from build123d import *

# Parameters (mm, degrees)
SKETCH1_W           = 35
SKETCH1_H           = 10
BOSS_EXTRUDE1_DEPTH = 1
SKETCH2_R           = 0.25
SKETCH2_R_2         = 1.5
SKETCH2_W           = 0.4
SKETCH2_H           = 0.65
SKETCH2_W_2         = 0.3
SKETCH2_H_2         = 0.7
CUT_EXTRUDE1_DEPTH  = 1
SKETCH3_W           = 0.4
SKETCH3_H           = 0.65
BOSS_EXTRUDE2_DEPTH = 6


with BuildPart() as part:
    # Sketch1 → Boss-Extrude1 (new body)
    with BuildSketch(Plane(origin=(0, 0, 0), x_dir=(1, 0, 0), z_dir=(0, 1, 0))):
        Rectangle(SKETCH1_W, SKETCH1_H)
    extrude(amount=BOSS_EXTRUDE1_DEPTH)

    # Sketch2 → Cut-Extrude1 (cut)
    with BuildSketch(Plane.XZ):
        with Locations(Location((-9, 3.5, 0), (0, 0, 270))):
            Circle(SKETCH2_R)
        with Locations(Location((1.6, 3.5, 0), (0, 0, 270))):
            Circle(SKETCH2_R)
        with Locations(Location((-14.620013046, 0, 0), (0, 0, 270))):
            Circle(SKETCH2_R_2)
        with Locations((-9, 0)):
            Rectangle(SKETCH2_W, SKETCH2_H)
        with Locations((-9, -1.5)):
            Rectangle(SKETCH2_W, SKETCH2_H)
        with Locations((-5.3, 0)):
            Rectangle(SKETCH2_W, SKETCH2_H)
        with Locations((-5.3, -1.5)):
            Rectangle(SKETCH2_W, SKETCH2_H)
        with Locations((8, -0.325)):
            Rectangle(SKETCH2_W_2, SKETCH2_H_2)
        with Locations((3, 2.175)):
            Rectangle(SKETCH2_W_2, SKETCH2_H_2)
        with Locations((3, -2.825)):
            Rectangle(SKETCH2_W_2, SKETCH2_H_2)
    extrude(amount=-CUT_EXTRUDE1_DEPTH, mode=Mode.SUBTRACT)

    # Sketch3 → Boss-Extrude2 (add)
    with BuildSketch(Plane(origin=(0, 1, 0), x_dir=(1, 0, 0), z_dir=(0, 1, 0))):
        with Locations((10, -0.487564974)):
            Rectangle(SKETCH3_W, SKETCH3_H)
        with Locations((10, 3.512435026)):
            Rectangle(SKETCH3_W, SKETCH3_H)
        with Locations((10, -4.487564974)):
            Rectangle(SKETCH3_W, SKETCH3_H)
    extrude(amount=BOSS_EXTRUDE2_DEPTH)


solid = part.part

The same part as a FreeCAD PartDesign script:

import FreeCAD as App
import Part
import Sketcher

V = App.Vector


def add_polygon(sketch, points):
    """Adds a closed chain of lines whose ends are joined by coincident constraints."""
    first, n = sketch.GeometryCount, len(points)
    for a, b in zip(points, points[1:] + points[:1]):
        sketch.addGeometry(Part.LineSegment(App.Vector(*a, 0), App.Vector(*b, 0)), False)
    for i in range(n):
        sketch.addConstraint(Sketcher.Constraint("Coincident", first + i, 2, first + (i + 1) % n, 1))

doc = App.newDocument("Part")
body = doc.addObject("PartDesign::Body", "Body")

sketch1 = doc.addObject("Sketcher::SketchObject", "Sketch")
body.addObject(sketch1)
sketch1.AttachmentSupport = (doc.XZ_Plane, [""])
sketch1.MapMode = "FlatFace"
add_polygon(sketch1, [(-17.5, -5), (-17.5, 5), (17.5, 5), (17.5, -5)])
sketch1.addConstraint([
    Sketcher.Constraint("Vertical", 0),
    Sketcher.Constraint("Horizontal", 1),
    Sketcher.Constraint("Vertical", 2),
    Sketcher.Constraint("Horizontal", 3),
    Sketcher.Constraint("Symmetric", 0, 2, 2, 2, -1, 1),
    Sketcher.Constraint("DistanceX", 1, 1, 1, 2, 35.0),
    Sketcher.Constraint("DistanceY", 0, 1, 0, 2, 10.0),
])
pad1 = doc.addObject("PartDesign::Pad", "Pad")
body.addObject(pad1)
pad1.Profile = sketch1
pad1.Length = 1
pad1.Reversed = True

sketch2 = doc.addObject("Sketcher::SketchObject", "Sketch001")
body.addObject(sketch2)
sketch2.AttachmentSupport = (doc.XZ_Plane, [""])
sketch2.MapMode = "FlatFace"
sketch2.addGeometry(Part.Circle(V(-9, 3.5, 0), V(0, 0, 1), 0.25), False)
sketch2.addGeometry(Part.Circle(V(1.6, 3.5, 0), V(0, 0, 1), 0.25), False)
sketch2.addGeometry(Part.Circle(V(-14.620013, 0, 0), V(0, 0, 1), 1.5), False)
add_polygon(sketch2, [(-9.2, 0.325), (-9.2, -0.325), (-8.8, -0.325), (-8.8, 0.325)])
add_polygon(sketch2, [(-9.2, -1.175), (-9.2, -1.825), (-8.8, -1.825), (-8.8, -1.175)])
add_polygon(sketch2, [(-5.5, 0.325), (-5.5, -0.325), (-5.1, -0.325), (-5.1, 0.325)])
add_polygon(sketch2, [(-5.5, -1.175), (-5.5, -1.825), (-5.1, -1.825), (-5.1, -1.175)])
add_polygon(sketch2, [(7.85, 0.025), (7.85, -0.675), (8.15, -0.675), (8.15, 0.025)])
add_polygon(sketch2, [(2.85, 2.525), (2.85, 1.825), (3.15, 1.825), (3.15, 2.525)])
add_polygon(sketch2, [(2.85, -2.475), (2.85, -3.175), (3.15, -3.175), (3.15, -2.475)])
sketch2.addConstraint([
    Sketcher.Constraint("Vertical", 3),
    Sketcher.Constraint("Horizontal", 4),
    Sketcher.Constraint("Vertical", 5),
    Sketcher.Constraint("Horizontal", 6),
    Sketcher.Constraint("Vertical", 7),
    Sketcher.Constraint("Horizontal", 8),
    Sketcher.Constraint("Vertical", 9),
    Sketcher.Constraint("Horizontal", 10),
    Sketcher.Constraint("Vertical", 11),
    Sketcher.Constraint("Horizontal", 12),
    Sketcher.Constraint("Vertical", 13),
    Sketcher.Constraint("Horizontal", 14),
    Sketcher.Constraint("Vertical", 15),
    Sketcher.Constraint("Horizontal", 16),
    Sketcher.Constraint("Vertical", 17),
    Sketcher.Constraint("Horizontal", 18),
    Sketcher.Constraint("Vertical", 19),
    Sketcher.Constraint("Horizontal", 20),
    Sketcher.Constraint("Vertical", 21),
    Sketcher.Constraint("Horizontal", 22),
    Sketcher.Constraint("Vertical", 23),
    Sketcher.Constraint("Horizontal", 24),
    Sketcher.Constraint("Vertical", 25),
    Sketcher.Constraint("Horizontal", 26),
    Sketcher.Constraint("Vertical", 27),
    Sketcher.Constraint("Horizontal", 28),
    Sketcher.Constraint("Vertical", 29),
    Sketcher.Constraint("Horizontal", 30),
    Sketcher.Constraint("Equal", 0, 1),
    Sketcher.Constraint("PointOnObject", 2, 3, -1),
    Sketcher.Constraint("Horizontal", 0, 3, 1, 3),
    Sketcher.Constraint("Horizontal", 4, 2, 11, 2),
    Sketcher.Constraint("Horizontal", 6, 2, 13, 2),
    Sketcher.Constraint("Horizontal", 8, 2, 15, 2),
    Sketcher.Constraint("Horizontal", 10, 2, 17, 2),
    Sketcher.Constraint("Vertical", 6, 2, 7, 2),
    Sketcher.Constraint("Vertical", 5, 2, 8, 2),
    Sketcher.Constraint("Vertical", 14, 2, 15, 2),
    Sketcher.Constraint("Vertical", 13, 2, 16, 2),
    Sketcher.Constraint("Vertical", 26, 2, 27, 2),
    Sketcher.Constraint("Vertical", 25, 2, 28, 2),
    Sketcher.Constraint("Equal", 10, 12),
    Sketcher.Constraint("Equal", 22, 24),
    Sketcher.Constraint("Equal", 5, 7),
    Sketcher.Constraint("Equal", 21, 23),
    Sketcher.Constraint("Equal", 25, 27),
    Sketcher.Constraint("Diameter", 2, 3.0),
    Sketcher.Constraint("Diameter", 0, 0.5),
    Sketcher.Constraint("DistanceX", 4, 1, 4, 2, 0.4),
    Sketcher.Constraint("DistanceX", 20, 1, 20, 2, 0.3),
    Sketcher.Constraint("DistanceY", 19, 2, 19, 1, 0.7),
    Sketcher.Constraint("DistanceX", 0, 3, -1, 1, 9.0),
    Sketcher.Constraint("DistanceY", 19, 2, 13, 2, 1.0),
    Sketcher.Constraint("DistanceX", 23, 2, 22, 2, 5.0),
    Sketcher.Constraint("DistanceY", 27, 2, 23, 2, 5.0),
    Sketcher.Constraint("DistanceY", 3, 2, 3, 1, 0.65),
    Sketcher.Constraint("DistanceY", -1, 1, 0, 3, 3.5),
    Sketcher.Constraint("DistanceX", -1, 1, 1, 3, 1.6),
    Sketcher.Constraint("DistanceX", 3, 2, -1, 1, 9.2),
    Sketcher.Constraint("DistanceX", 11, 2, -1, 1, 5.5),
    Sketcher.Constraint("DistanceY", 7, 2, 3, 2, 1.5),
    Sketcher.Constraint("DistanceY", 22, 2, 23, 2, 1.8),
    Sketcher.Constraint("DistanceX", -1, 1, 19, 2, 7.85),
    Sketcher.Constraint("DistanceY", 3, 2, -1, 1, 0.325),
    Sketcher.Constraint("DistanceX", 2, 3, -1, 1, 14.620013),
])
pocket1 = doc.addObject("PartDesign::Pocket", "Pocket")
body.addObject(pocket1)
pocket1.Profile = sketch2
pocket1.Length = 1

sketch3 = doc.addObject("Sketcher::SketchObject", "Sketch002")
body.addObject(sketch3)
sketch3.AttachmentSupport = (doc.XZ_Plane, [""])
sketch3.MapMode = "FlatFace"
sketch3.AttachmentOffset = App.Placement(V(0, 0, -1), App.Rotation())
add_polygon(sketch3, [(9.8, 0.162565), (9.8, 0.812565), (10.2, 0.812565), (10.2, 0.162565)])
add_polygon(sketch3, [(9.8, -3.837435), (9.8, -3.187435), (10.2, -3.187435), (10.2, -3.837435)])
add_polygon(sketch3, [(9.8, 4.162565), (9.8, 4.812565), (10.2, 4.812565), (10.2, 4.162565)])
sketch3.addConstraint([
    Sketcher.Constraint("Vertical", 0),
    Sketcher.Constraint("Horizontal", 1),
    Sketcher.Constraint("Vertical", 2),
    Sketcher.Constraint("Horizontal", 3),
    Sketcher.Constraint("Vertical", 4),
    Sketcher.Constraint("Horizontal", 5),
    Sketcher.Constraint("Vertical", 6),
    Sketcher.Constraint("Horizontal", 7),
    Sketcher.Constraint("Vertical", 8),
    Sketcher.Constraint("Horizontal", 9),
    Sketcher.Constraint("Vertical", 10),
    Sketcher.Constraint("Horizontal", 11),
    Sketcher.Constraint("Vertical", 3, 2, 4, 2),
    Sketcher.Constraint("Vertical", 2, 2, 5, 2),
    Sketcher.Constraint("Vertical", 7, 2, 8, 2),
    Sketcher.Constraint("Vertical", 6, 2, 9, 2),
    Sketcher.Constraint("Equal", 2, 4),
    Sketcher.Constraint("Equal", 6, 8),
    Sketcher.Constraint("DistanceX", 1, 1, 1, 2, 0.4),
    Sketcher.Constraint("DistanceY", 4, 2, 0, 2, 4.0),
    Sketcher.Constraint("DistanceY", 0, 2, 8, 2, 4.0),
    Sketcher.Constraint("DistanceY", 0, 1, 0, 2, 0.65),
    Sketcher.Constraint("DistanceX", -1, 1, 0, 2, 9.8),
    Sketcher.Constraint("DistanceY", -1, 1, 0, 2, 0.812565),
])
pad2 = doc.addObject("PartDesign::Pad", "Pad001")
body.addObject(pad2)
pad2.Profile = sketch3
pad2.Length = 6
pad2.Reversed = True

doc.recompute()
